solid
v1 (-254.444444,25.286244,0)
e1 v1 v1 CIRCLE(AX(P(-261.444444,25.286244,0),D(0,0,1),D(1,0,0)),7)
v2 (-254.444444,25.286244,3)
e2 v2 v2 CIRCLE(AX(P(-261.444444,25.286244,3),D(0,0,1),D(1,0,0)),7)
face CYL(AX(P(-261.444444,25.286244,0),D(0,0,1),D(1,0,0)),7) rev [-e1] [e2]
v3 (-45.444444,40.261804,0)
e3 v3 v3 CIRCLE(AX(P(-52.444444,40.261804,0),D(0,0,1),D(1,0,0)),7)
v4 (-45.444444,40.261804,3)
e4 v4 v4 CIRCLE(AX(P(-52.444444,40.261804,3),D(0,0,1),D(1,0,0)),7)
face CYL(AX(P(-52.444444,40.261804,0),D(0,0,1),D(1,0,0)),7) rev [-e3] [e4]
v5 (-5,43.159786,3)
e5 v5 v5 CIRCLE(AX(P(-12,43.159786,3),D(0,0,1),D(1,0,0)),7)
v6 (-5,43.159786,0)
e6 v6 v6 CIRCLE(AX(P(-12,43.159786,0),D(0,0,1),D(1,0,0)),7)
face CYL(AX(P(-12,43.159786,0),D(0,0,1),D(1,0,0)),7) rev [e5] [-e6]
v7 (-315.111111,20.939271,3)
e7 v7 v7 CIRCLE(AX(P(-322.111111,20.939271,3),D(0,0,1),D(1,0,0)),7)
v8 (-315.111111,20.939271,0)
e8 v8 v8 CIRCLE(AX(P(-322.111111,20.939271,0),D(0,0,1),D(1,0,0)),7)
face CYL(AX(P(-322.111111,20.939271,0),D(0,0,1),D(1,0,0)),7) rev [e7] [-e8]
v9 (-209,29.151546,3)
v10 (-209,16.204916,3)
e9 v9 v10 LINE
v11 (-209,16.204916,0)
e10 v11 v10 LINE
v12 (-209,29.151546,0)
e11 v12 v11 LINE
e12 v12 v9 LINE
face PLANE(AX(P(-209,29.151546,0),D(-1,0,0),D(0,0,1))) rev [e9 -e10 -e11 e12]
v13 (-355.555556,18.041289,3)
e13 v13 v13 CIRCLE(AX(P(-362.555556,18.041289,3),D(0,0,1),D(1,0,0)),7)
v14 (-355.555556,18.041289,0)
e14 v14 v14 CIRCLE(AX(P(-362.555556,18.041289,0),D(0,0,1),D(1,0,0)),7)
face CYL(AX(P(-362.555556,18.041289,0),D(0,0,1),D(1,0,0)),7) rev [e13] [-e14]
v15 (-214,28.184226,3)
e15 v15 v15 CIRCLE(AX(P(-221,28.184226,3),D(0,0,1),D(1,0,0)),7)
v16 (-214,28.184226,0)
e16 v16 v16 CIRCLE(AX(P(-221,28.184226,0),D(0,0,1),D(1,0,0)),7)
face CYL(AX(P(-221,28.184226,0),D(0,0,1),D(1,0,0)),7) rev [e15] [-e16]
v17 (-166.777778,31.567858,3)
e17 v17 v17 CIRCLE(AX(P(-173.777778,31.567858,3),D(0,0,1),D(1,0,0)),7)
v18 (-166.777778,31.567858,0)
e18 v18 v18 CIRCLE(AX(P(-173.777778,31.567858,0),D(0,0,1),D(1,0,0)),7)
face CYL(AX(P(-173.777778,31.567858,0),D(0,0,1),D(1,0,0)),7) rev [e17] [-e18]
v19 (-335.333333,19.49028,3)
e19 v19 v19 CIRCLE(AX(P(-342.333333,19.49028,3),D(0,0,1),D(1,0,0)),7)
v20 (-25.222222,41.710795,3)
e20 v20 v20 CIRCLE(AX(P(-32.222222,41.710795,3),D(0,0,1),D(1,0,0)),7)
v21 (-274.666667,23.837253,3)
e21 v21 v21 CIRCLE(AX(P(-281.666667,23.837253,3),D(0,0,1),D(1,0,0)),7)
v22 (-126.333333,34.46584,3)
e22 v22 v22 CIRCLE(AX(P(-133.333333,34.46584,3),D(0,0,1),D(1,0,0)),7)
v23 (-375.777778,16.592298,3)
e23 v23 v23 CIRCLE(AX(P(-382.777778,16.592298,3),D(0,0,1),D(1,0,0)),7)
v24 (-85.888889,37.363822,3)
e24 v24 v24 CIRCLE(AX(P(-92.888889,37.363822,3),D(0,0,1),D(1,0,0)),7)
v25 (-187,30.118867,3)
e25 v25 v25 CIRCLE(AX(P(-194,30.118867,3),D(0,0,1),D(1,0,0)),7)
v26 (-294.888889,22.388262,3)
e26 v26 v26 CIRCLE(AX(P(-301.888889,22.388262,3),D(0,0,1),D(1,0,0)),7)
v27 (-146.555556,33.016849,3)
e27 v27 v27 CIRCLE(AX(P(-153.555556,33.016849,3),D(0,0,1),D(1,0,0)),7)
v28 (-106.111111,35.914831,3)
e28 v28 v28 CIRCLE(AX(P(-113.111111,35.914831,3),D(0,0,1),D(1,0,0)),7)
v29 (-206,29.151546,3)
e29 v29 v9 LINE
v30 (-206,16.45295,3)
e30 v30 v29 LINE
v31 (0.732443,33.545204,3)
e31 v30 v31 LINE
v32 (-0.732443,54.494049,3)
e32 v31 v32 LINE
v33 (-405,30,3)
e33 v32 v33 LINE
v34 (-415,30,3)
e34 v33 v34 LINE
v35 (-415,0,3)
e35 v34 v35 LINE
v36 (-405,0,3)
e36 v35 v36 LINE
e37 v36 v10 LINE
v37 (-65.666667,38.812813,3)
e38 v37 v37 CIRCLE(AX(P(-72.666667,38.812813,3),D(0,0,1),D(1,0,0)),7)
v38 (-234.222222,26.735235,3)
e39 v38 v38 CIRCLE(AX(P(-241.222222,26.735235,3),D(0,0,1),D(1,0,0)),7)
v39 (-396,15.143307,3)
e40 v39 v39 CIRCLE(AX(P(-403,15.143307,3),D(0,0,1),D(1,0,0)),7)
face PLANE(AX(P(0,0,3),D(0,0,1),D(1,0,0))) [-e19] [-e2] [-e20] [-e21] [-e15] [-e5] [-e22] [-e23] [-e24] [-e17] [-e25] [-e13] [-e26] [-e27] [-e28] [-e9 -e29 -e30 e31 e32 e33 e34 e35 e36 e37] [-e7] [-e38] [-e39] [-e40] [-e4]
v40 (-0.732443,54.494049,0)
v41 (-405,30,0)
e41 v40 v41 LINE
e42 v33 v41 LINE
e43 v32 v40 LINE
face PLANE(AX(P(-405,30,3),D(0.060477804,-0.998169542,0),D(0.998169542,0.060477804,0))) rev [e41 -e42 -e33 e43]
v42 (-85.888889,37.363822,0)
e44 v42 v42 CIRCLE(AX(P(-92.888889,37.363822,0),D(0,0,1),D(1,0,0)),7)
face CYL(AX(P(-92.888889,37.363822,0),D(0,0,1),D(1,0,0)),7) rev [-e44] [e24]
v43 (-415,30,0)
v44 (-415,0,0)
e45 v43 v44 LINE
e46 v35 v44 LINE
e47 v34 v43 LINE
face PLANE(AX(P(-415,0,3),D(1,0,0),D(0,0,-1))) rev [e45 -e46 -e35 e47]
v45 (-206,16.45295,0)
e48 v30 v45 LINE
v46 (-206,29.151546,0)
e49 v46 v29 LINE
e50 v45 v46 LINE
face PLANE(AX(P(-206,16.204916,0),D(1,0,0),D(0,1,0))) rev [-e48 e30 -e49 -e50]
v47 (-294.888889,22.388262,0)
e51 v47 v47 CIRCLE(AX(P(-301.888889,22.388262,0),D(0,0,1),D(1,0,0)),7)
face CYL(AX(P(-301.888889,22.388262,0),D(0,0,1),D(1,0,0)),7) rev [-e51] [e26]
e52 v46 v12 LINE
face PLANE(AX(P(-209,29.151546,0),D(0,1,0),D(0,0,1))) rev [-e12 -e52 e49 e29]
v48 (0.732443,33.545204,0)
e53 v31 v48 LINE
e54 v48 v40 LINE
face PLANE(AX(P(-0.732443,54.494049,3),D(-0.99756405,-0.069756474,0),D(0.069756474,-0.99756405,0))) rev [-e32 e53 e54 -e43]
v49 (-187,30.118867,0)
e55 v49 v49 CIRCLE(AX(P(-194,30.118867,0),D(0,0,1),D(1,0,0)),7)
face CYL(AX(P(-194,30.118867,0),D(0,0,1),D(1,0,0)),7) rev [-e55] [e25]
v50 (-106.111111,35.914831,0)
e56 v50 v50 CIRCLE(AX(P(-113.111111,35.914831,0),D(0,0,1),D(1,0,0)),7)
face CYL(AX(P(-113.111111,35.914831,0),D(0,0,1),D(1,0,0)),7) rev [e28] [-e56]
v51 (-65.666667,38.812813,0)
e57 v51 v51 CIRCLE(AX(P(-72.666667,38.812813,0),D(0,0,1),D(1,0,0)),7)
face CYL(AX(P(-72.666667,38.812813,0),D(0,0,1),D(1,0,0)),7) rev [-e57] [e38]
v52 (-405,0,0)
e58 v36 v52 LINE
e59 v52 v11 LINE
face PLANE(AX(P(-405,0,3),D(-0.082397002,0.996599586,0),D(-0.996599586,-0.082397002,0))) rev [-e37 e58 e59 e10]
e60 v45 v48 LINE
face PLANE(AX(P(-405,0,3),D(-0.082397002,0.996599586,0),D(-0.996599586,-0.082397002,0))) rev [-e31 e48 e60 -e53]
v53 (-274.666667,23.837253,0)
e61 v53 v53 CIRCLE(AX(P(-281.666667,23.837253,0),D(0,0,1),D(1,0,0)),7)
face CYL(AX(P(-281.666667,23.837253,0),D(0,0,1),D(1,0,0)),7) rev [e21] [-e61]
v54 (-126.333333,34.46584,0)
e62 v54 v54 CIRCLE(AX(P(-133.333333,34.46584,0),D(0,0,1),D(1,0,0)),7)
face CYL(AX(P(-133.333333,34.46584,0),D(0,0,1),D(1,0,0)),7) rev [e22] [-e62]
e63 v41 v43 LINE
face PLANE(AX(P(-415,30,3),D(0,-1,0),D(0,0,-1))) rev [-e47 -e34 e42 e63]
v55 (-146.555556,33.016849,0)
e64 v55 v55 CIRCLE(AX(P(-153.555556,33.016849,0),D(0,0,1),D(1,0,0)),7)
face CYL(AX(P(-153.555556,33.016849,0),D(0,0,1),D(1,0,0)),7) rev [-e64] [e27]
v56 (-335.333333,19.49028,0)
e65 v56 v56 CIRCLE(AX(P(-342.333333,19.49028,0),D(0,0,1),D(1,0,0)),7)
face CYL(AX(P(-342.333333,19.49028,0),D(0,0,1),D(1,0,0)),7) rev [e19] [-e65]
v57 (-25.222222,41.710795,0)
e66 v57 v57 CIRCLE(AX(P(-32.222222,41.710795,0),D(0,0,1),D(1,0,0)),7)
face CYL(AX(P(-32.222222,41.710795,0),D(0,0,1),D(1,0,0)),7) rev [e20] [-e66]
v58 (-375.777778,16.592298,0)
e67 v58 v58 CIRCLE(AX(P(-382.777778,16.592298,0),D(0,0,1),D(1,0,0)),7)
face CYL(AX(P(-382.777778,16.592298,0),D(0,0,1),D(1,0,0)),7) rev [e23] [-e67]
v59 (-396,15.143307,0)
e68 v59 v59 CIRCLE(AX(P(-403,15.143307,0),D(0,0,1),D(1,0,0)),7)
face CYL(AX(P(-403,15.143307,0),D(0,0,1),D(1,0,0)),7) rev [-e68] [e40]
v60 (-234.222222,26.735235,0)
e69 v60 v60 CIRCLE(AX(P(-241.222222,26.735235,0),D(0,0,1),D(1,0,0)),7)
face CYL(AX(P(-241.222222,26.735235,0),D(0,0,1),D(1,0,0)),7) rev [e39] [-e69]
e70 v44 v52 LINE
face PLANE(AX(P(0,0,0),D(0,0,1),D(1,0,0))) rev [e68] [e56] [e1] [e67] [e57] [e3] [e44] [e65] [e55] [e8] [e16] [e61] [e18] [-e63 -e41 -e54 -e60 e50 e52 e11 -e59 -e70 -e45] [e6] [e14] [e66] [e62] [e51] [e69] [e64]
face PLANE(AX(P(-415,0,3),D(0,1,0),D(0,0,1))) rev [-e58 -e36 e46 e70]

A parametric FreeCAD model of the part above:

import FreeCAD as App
import Part
import Sketcher
from FreeCAD import Vector
Q = App.Units.Quantity


def add_polygon(sketch, points):
    """Adds a closed chain of lines whose ends are joined by coincident constraints."""
    first, n = sketch.GeometryCount, len(points)
    for a, b in zip(points, points[1:] + points[:1]):
        sketch.addGeometry(Part.LineSegment(App.Vector(*a, 0), App.Vector(*b, 0)), False)
    for i in range(n):
        sketch.addConstraint(Sketcher.Constraint("Coincident", first + i, 2, first + (i + 1) % n, 1))

doc = App.newDocument("Part")
body = doc.addObject("PartDesign::Body", "Body")

# Sketch on XY plane
sketch1 = body.newObject("Sketcher::SketchObject", "Sketch")
sketch1.AttachmentSupport = (doc.getObject("XY_Plane"), [""])
sketch1.MapMode = "FlatFace"
add_polygon(sketch1, [(-415, 30), (-415, 0), (-405, 0), (1, 34), (-1, 54), (-405, 30)])  # lines 0-5
sketch1.addConstraint(Sketcher.Constraint("Vertical", 0))
sketch1.addConstraint(Sketcher.Constraint("Horizontal", 1))
sketch1.addConstraint(Sketcher.Constraint("Horizontal", 5))
sketch1.addConstraint(Sketcher.Constraint("PointOnObject", 0, 2, -1))
sketch1.addConstraint(Sketcher.Constraint("Vertical", 1, 2, 4, 2))
sketch1.addConstraint(Sketcher.Constraint("DistanceX", 1, 1, 1, 2, Q("10 mm")))
sketch1.addConstraint(Sketcher.Constraint("DistanceY", 0, 2, 0, 1, Q("30 mm")))
sketch1.addConstraint(Sketcher.Constraint("Angle", 3, Q("94 deg")))
sketch1.addConstraint(Sketcher.Constraint("Distance", 3, Q("21 mm")))
sketch1.addConstraint(Sketcher.Constraint("DistanceX", 0, 2, -1, 1, Q("415 mm")))
sketch1.addConstraint(Sketcher.Constraint("Distance", 2, Q("407.116809 mm")))
sketch1.addConstraint(Sketcher.Constraint("Distance", 4, Q("405.008909 mm")))
pad1 = body.newObject("PartDesign::Pad", "Pad")
pad1.Profile = sketch1
pad1.Length = 3

# Sketch on XY plane
sketch2 = body.newObject("Sketcher::SketchObject", "Sketch001")
sketch2.AttachmentSupport = (doc.getObject("XY_Plane"), [""])
sketch2.MapMode = "FlatFace"
sketch2.AttachmentOffset = App.Placement(Vector(0, 0, 3), App.Rotation())
sketch2.addGeometry(Part.Circle(Vector(-403, 15.1, 0), Vector(0, 0, 1), 7), False)  # 0
sketch2.addGeometry(Part.Circle(Vector(-382.8, 16.6, 0), Vector(0, 0, 1), 7), False)  # 1
sketch2.addGeometry(Part.Circle(Vector(-362.6, 18, 0), Vector(0, 0, 1), 7), False)  # 2
sketch2.addGeometry(Part.Circle(Vector(-342.3, 19.5, 0), Vector(0, 0, 1), 7), False)  # 3
sketch2.addGeometry(Part.Circle(Vector(-322.1, 20.9, 0), Vector(0, 0, 1), 7), False)  # 4
sketch2.addGeometry(Part.Circle(Vector(-301.9, 22.4, 0), Vector(0, 0, 1), 7), False)  # 5
sketch2.addGeometry(Part.Circle(Vector(-281.7, 23.8, 0), Vector(0, 0, 1), 7), False)  # 6
sketch2.addGeometry(Part.Circle(Vector(-261.4, 25.3, 0), Vector(0, 0, 1), 7), False)  # 7
sketch2.addGeometry(Part.Circle(Vector(-241.2, 26.7, 0), Vector(0, 0, 1), 7), False)  # 8
sketch2.addGeometry(Part.Circle(Vector(-221, 28.2, 0), Vector(0, 0, 1), 7), False)  # 9
sketch2.addGeometry(Part.Circle(Vector(-194, 30.1, 0), Vector(0, 0, 1), 7), False)  # 10
sketch2.addGeometry(Part.Circle(Vector(-173.8, 31.6, 0), Vector(0, 0, 1), 7), False)  # 11
sketch2.addGeometry(Part.Circle(Vector(-153.6, 33, 0), Vector(0, 0, 1), 7), False)  # 12
sketch2.addGeometry(Part.Circle(Vector(-133.3, 34.5, 0), Vector(0, 0, 1), 7), False)  # 13
sketch2.addGeometry(Part.Circle(Vector(-113.1, 35.9, 0), Vector(0, 0, 1), 7), False)  # 14
sketch2.addGeometry(Part.Circle(Vector(-92.9, 37.4, 0), Vector(0, 0, 1), 7), False)  # 15
sketch2.addGeometry(Part.Circle(Vector(-72.7, 38.8, 0), Vector(0, 0, 1), 7), False)  # 16
sketch2.addGeometry(Part.Circle(Vector(-52.4, 40.3, 0), Vector(0, 0, 1), 7), False)  # 17
sketch2.addGeometry(Part.Circle(Vector(-32.2, 41.7, 0), Vector(0, 0, 1), 7), False)  # 18
sketch2.addGeometry(Part.Circle(Vector(-12, 43.2, 0), Vector(0, 0, 1), 7), False)  # 19
add_polygon(sketch2, [(-209, 29.2), (-209, 16.2), (-206, 16.2), (-206, 29.2)])  # lines 20-23
sketch2.addConstraint(Sketcher.Constraint("Vertical", 20))
sketch2.addConstraint(Sketcher.Constraint("Horizontal", 21))
sketch2.addConstraint(Sketcher.Constraint("Vertical", 22))
sketch2.addConstraint(Sketcher.Constraint("Horizontal", 23))
sketch2.addConstraint(Sketcher.Constraint("Equal", 0, 1))
sketch2.addConstraint(Sketcher.Constraint("Equal", 1, 2))
sketch2.addConstraint(Sketcher.Constraint("Equal", 2, 3))
sketch2.addConstraint(Sketcher.Constraint("Equal", 3, 4))
sketch2.addConstraint(Sketcher.Constraint("Equal", 4, 5))
sketch2.addConstraint(Sketcher.Constraint("Equal", 5, 6))
sketch2.addConstraint(Sketcher.Constraint("Equal", 6, 7))
sketch2.addConstraint(Sketcher.Constraint("Equal", 7, 8))
sketch2.addConstraint(Sketcher.Constraint("Equal", 8, 9))
sketch2.addConstraint(Sketcher.Constraint("Equal", 9, 10))
sketch2.addConstraint(Sketcher.Constraint("Equal", 10, 11))
sketch2.addConstraint(Sketcher.Constraint("Equal", 11, 12))
sketch2.addConstraint(Sketcher.Constraint("Equal", 12, 13))
sketch2.addConstraint(Sketcher.Constraint("Equal", 13, 14))
sketch2.addConstraint(Sketcher.Constraint("Equal", 14, 15))
sketch2.addConstraint(Sketcher.Constraint("Equal", 15, 16))
sketch2.addConstraint(Sketcher.Constraint("Equal", 16, 17))
sketch2.addConstraint(Sketcher.Constraint("Equal", 17, 18))
sketch2.addConstraint(Sketcher.Constraint("Equal", 18, 19))
sketch2.addConstraint(Sketcher.Constraint("Diameter", 0, Q("14 mm")))
sketch2.addConstraint(Sketcher.Constraint("DistanceX", 21, 1, 21, 2, Q("3 mm")))
sketch2.addConstraint(Sketcher.Constraint("DistanceX", 0, 3, -1, 1, Q("403 mm")))
sketch2.addConstraint(Sketcher.Constraint("DistanceX", 9, 3, -1, 1, Q("221 mm")))
sketch2.addConstraint(Sketcher.Constraint("DistanceX", 10, 3, -1, 1, Q("194 mm")))
sketch2.addConstraint(Sketcher.Constraint("DistanceX", 19, 3, -1, 1, Q("12 mm")))
sketch2.addConstraint(Sketcher.Constraint("DistanceX", 20, 2, -1, 1, Q("209 mm")))
sketch2.addConstraint(Sketcher.Constraint("DistanceY", 20, 2, 20, 1, Q("12.946631 mm")))
sketch2.addConstraint(Sketcher.Constraint("DistanceY", -1, 1, 2, 3, Q("18.041289 mm")))
sketch2.addConstraint(Sketcher.Constraint("DistanceY", -1, 1, 3, 3, Q("19.49028 mm")))
sketch2.addConstraint(Sketcher.Constraint("DistanceX", 4, 3, -1, 1, Q("322.111111 mm")))
sketch2.addConstraint(Sketcher.Constraint("DistanceY", -1, 1, 4, 3, Q("20.939271 mm")))
sketch2.addConstraint(Sketcher.Constraint("DistanceX", 5, 3, -1, 1, Q("301.888889 mm")))
sketch2.addConstraint(Sketcher.Constraint("DistanceY", -1, 1, 5, 3, Q("22.388262 mm")))
sketch2.addConstraint(Sketcher.Constraint("DistanceY", -1, 1, 11, 3, Q("31.567858 mm")))
sketch2.addConstraint(Sketcher.Constraint("DistanceY", -1, 1, 12, 3, Q("33.016849 mm")))
sketch2.addConstraint(Sketcher.Constraint("DistanceY", -1, 1, 13, 3, Q("34.46584 mm")))
sketch2.addConstraint(Sketcher.Constraint("DistanceX", 14, 3, -1, 1, Q("113.111111 mm")))
sketch2.addConstraint(Sketcher.Constraint("DistanceY", -1, 1, 14, 3, Q("35.914831 mm")))
sketch2.addConstraint(Sketcher.Constraint("DistanceX", 15, 3, -1, 1, Q("92.888889 mm")))
sketch2.addConstraint(Sketcher.Constraint("DistanceY", 0, 3, 1, 3, Q("1.448991 mm")))
sketch2.addConstraint(Sketcher.Constraint("DistanceY", 1, 3, 2, 3, Q("1.448991 mm")))
sketch2.addConstraint(Sketcher.Constraint("DistanceX", 1, 3, 5, 3, Q("80.888889 mm")))
sketch2.addConstraint(Sketcher.Constraint("DistanceY", 5, 3, 6, 3, Q("1.448991 mm")))
sketch2.addConstraint(Sketcher.Constraint("DistanceX", 2, 3, 6, 3, Q("80.888889 mm")))
sketch2.addConstraint(Sketcher.Constraint("DistanceX", 1, 3, 6, 3, Q("101.111111 mm")))
sketch2.addConstraint(Sketcher.Constraint("DistanceY", 6, 3, 7, 3, Q("1.448991 mm")))
sketch2.addConstraint(Sketcher.Constraint("DistanceX", 3, 3, 7, 3, Q("80.888889 mm")))
sketch2.addConstraint(Sketcher.Constraint("DistanceX", 2, 3, 7, 3, Q("101.111111 mm")))
sketch2.addConstraint(Sketcher.Constraint("DistanceY", 7, 3, 8, 3, Q("1.448991 mm")))
sketch2.addConstraint(Sketcher.Constraint("DistanceX", 4, 3, 8, 3, Q("80.888889 mm")))
sketch2.addConstraint(Sketcher.Constraint("DistanceY", 8, 3, 9, 3, Q("1.448991 mm")))
sketch2.addConstraint(Sketcher.Constraint("DistanceY", 9, 3, 10, 3, Q("1.934642 mm")))
sketch2.addConstraint(Sketcher.Constraint("DistanceX", 6, 3, 11, 3, Q("107.888889 mm")))
sketch2.addConstraint(Sketcher.Constraint("DistanceX", 7, 3, 12, 3, Q("107.888889 mm")))
sketch2.addConstraint(Sketcher.Constraint("DistanceX", 8, 3, 13, 3, Q("107.888889 mm")))
sketch2.addConstraint(Sketcher.Constraint("DistanceY", 14, 3, 15, 3, Q("1.448991 mm")))
sketch2.addConstraint(Sketcher.Constraint("DistanceY", 15, 3, 16, 3, Q("1.448991 mm")))
sketch2.addConstraint(Sketcher.Constraint("DistanceX", 12, 3, 16, 3, Q("80.888889 mm")))
sketch2.addConstraint(Sketcher.Constraint("DistanceY", 16, 3, 17, 3, Q("1.448991 mm")))
sketch2.addConstraint(Sketcher.Constraint("DistanceX", 13, 3, 17, 3, Q("80.888889 mm")))
sketch2.addConstraint(Sketcher.Constraint("DistanceY", 17, 3, 18, 3, Q("1.448991 mm")))
sketch2.addConstraint(Sketcher.Constraint("DistanceX", 14, 3, 18, 3, Q("80.888889 mm")))
sketch2.addConstraint(Sketcher.Constraint("DistanceY", 18, 3, 19, 3, Q("1.448991 mm")))
sketch2.addConstraint(Sketcher.Constraint("DistanceY", 20, 2, 9, 3, Q("11.97931 mm")))
pocket1 = body.newObject("PartDesign::Pocket", "Pocket")
pocket1.Profile = sketch2
pocket1.Type = "ThroughAll"
pocket1.Midplane = True

doc.recompute()
